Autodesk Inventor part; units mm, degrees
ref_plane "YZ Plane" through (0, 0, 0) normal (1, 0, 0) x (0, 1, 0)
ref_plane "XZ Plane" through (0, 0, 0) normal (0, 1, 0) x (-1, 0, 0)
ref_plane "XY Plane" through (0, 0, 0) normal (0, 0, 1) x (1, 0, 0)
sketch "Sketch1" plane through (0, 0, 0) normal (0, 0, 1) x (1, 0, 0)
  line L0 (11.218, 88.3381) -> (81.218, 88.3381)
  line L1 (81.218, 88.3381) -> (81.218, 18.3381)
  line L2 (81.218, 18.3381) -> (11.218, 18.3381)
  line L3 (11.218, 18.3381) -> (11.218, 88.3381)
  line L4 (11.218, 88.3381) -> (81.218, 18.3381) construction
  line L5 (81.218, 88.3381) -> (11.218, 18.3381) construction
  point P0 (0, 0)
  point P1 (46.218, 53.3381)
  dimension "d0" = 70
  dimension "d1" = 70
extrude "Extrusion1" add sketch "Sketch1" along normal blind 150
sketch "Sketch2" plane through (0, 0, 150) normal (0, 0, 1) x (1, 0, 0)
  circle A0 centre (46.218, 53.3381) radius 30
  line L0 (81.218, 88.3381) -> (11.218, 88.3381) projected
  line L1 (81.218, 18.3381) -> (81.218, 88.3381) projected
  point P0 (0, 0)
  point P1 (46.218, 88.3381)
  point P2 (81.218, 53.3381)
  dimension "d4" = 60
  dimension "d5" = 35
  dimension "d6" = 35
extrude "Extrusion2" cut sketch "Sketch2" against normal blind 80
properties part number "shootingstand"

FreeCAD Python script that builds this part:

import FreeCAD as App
import Part
import Sketcher

V = App.Vector
Q = App.Units.Quantity


def add_polygon(sketch, points):
    """Adds a closed chain of lines whose ends are joined by coincident constraints."""
    first, n = sketch.GeometryCount, len(points)
    for a, b in zip(points, points[1:] + points[:1]):
        sketch.addGeometry(Part.LineSegment(App.Vector(*a, 0), App.Vector(*b, 0)), False)
    for i in range(n):
        sketch.addConstraint(Sketcher.Constraint("Coincident", first + i, 2, first + (i + 1) % n, 1))

doc = App.newDocument("Part")
body = doc.addObject("PartDesign::Body", "Body")

sketch1 = doc.addObject("Sketcher::SketchObject", "Sketch")
body.addObject(sketch1)
sketch1.AttachmentSupport = (doc.XY_Plane, [""])
sketch1.MapMode = "FlatFace"
add_polygon(sketch1, [(81, 88), (11, 88), (11, 18), (81, 18)])
sketch1.addConstraint(Sketcher.Constraint("Horizontal", 0))
sketch1.addConstraint(Sketcher.Constraint("Vertical", 1))
sketch1.addConstraint(Sketcher.Constraint("Horizontal", 2))
sketch1.addConstraint(Sketcher.Constraint("Vertical", 3))
sketch1.addConstraint(Sketcher.Constraint("Equal", 2, 1))
sketch1.addConstraint(Sketcher.Constraint("DistanceX", 0, 2, 0, 1, Q("70 mm")))
sketch1.addConstraint(Sketcher.Constraint("DistanceX", -1, 1, 0, 2, Q("11.218 mm")))
sketch1.addConstraint(Sketcher.Constraint("DistanceY", -1, 1, 0, 2, Q("88.338 mm")))
pad1 = doc.addObject("PartDesign::Pad", "Pad")
body.addObject(pad1)
pad1.Profile = sketch1
pad1.Length = 150

sketch2 = doc.addObject("Sketcher::SketchObject", "Sketch001")
body.addObject(sketch2)
sketch2.AttachmentSupport = (doc.XY_Plane, [""])
sketch2.MapMode = "FlatFace"
sketch2.AttachmentOffset = App.Placement(V(0, 0, 150), App.Rotation())
sketch2.addGeometry(Part.Circle(V(46, 53, 0), V(0, 0, 1), 30), False)
sketch2.addConstraint(Sketcher.Constraint("Diameter", 0, Q("60 mm")))
sketch2.addConstraint(Sketcher.Constraint("DistanceX", -1, 1, 0, 3, Q("46.218 mm")))
sketch2.addConstraint(Sketcher.Constraint("DistanceY", -1, 1, 0, 3, Q("53.338 mm")))
pocket1 = doc.addObject("PartDesign::Pocket", "Pocket")
body.addObject(pocket1)
pocket1.Profile = sketch2
pocket1.Length = 80

doc.recompute()
